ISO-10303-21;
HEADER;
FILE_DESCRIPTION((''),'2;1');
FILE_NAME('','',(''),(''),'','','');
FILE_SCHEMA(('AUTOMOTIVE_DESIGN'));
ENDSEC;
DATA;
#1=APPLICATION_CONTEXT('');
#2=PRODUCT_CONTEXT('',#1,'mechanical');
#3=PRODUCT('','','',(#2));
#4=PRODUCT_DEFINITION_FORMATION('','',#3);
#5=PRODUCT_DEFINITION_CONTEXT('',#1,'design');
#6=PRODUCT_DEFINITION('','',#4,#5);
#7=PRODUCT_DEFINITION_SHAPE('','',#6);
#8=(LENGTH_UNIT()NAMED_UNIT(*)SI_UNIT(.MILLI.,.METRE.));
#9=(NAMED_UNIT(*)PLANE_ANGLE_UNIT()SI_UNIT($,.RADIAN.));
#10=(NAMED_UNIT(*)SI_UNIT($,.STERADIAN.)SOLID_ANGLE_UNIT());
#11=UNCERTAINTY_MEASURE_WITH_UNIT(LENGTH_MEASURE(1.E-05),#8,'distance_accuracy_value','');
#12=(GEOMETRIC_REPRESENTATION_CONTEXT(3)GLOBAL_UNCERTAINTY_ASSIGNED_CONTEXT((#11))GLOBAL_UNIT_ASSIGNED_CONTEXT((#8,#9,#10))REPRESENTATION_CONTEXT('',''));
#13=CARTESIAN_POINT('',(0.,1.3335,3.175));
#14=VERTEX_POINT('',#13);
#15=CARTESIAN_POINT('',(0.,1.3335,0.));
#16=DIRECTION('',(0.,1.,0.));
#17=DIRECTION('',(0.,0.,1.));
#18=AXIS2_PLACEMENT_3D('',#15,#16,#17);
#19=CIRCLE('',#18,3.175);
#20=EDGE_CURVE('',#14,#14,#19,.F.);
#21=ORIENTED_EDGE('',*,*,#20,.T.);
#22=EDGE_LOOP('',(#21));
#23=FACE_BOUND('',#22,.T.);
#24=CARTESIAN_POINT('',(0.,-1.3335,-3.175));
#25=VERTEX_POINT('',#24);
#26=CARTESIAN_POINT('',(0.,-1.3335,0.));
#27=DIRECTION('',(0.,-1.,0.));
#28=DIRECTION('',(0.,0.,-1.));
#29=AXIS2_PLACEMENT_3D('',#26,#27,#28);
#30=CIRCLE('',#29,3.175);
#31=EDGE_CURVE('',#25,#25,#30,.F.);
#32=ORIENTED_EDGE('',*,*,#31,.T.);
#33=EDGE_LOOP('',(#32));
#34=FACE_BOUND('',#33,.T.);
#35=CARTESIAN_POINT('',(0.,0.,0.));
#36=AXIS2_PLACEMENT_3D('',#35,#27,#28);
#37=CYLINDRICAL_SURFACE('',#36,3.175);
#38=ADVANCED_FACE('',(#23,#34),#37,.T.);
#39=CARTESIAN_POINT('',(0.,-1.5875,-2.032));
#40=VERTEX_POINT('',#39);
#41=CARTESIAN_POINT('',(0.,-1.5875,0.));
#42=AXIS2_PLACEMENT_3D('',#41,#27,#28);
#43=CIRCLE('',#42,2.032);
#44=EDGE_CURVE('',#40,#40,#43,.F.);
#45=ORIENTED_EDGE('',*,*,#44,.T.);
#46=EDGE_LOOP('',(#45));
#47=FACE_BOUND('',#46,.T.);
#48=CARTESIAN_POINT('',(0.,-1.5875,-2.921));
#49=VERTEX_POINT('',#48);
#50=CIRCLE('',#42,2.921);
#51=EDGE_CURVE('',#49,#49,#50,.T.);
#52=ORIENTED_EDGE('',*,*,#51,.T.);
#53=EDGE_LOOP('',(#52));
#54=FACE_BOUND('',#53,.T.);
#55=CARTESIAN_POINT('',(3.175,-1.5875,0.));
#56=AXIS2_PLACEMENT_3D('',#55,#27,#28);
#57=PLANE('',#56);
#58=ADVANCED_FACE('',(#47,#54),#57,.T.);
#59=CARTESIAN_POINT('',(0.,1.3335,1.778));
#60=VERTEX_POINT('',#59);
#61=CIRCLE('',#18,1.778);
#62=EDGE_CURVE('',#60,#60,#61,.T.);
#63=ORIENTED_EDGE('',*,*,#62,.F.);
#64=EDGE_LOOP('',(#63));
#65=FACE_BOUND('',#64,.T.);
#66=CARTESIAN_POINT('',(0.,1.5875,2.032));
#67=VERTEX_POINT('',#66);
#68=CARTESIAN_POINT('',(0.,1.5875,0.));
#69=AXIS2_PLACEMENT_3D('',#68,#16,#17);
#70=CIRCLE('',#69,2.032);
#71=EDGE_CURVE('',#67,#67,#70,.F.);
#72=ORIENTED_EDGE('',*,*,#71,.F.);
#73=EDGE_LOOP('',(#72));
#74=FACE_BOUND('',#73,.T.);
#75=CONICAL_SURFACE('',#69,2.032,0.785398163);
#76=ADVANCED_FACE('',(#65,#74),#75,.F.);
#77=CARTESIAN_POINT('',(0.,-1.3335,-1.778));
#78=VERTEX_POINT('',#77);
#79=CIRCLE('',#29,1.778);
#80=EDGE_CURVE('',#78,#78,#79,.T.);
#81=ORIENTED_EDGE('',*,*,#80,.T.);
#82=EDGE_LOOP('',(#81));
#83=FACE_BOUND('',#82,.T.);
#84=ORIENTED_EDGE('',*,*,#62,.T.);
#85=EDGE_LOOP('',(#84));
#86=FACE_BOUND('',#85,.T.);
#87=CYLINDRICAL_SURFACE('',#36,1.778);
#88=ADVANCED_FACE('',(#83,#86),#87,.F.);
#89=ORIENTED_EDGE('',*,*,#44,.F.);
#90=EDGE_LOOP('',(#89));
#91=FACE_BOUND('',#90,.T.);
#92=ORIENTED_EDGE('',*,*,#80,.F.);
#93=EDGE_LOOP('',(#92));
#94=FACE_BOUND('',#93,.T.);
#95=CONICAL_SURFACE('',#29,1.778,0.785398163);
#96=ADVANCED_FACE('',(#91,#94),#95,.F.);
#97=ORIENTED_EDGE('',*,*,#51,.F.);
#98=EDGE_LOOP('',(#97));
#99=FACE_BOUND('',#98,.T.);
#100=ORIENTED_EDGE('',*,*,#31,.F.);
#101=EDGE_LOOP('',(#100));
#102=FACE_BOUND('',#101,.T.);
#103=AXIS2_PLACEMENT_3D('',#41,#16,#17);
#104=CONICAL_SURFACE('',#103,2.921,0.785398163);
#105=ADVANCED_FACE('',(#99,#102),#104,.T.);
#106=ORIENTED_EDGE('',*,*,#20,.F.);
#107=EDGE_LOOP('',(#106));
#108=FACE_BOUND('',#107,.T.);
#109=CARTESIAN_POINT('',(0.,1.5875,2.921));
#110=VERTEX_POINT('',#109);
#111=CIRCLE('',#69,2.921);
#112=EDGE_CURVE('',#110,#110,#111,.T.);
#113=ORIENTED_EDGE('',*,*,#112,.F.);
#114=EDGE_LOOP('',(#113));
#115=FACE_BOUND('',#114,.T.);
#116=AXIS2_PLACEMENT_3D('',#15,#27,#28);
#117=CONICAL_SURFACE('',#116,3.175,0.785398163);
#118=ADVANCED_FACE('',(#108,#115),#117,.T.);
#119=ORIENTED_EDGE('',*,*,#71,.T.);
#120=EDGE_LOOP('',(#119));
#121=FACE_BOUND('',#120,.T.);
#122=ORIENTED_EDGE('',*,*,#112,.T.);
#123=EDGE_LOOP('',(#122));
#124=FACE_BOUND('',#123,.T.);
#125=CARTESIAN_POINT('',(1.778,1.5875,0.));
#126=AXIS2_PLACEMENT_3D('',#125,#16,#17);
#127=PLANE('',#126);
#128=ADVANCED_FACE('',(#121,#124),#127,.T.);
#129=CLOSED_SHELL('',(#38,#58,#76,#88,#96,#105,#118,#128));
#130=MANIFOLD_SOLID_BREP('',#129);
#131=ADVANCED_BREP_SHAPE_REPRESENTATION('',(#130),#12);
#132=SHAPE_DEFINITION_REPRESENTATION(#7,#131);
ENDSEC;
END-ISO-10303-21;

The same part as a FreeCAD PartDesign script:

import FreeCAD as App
import Part
import Sketcher

V = App.Vector
Q = App.Units.Quantity


def edges_at(feature, points):
    """Names of the edges that pass closest to the given points."""
    edges = feature.Shape.Edges
    near = lambda p: min(range(len(edges)), key=lambda i: edges[i].distToShape(Part.Vertex(*p))[0])
    return sorted({f"Edge{near(p) + 1}" for p in points})


def add_polygon(sketch, points):
    """Adds a closed chain of lines whose ends are joined by coincident constraints."""
    first, n = sketch.GeometryCount, len(points)
    for a, b in zip(points, points[1:] + points[:1]):
        sketch.addGeometry(Part.LineSegment(App.Vector(*a, 0), App.Vector(*b, 0)), False)
    for i in range(n):
        sketch.addConstraint(Sketcher.Constraint("Coincident", first + i, 2, first + (i + 1) % n, 1))

doc = App.newDocument("Part")
params = doc.addObject("Spreadsheet::Sheet", "Params")
for row, (alias, value) in enumerate([
    ("sketch1_width", "0.055 in"),
    ("sketch1_height", "0.125 in"),
    ("revolution_angle", "360 deg"),
    ("chamfer_size", "0.01 in"),
], start=1):
    params.set(f"A{row}", alias)
    params.set(f"B{row}", "=" + value)
    params.setAlias(f"B{row}", alias)

body = doc.addObject("PartDesign::Body", "Body")

# Sketch on XY plane
sketch1 = body.newObject("Sketcher::SketchObject", "Sketch")
sketch1.AttachmentSupport = (doc.getObject("XY_Plane"), [""])
sketch1.MapMode = "FlatFace"
add_polygon(sketch1, [(1.8, 1.6), (1.8, -1.6), (3.2, -1.6), (3.2, 1.6)])  # lines 0-3
sketch1.addConstraint(Sketcher.Constraint("Vertical", 0))
sketch1.addConstraint(Sketcher.Constraint("Horizontal", 1))
sketch1.addConstraint(Sketcher.Constraint("Vertical", 2))
sketch1.addConstraint(Sketcher.Constraint("Horizontal", 3))
sketch1.addConstraint(Sketcher.Constraint("DistanceX", 1, 1, 1, 2, Q("0.055 in")))
sketch1.addConstraint(Sketcher.Constraint("DistanceY", 0, 2, 0, 1, Q("0.125 in")))
sketch1.addConstraint(Sketcher.Constraint("DistanceX", -1, 1, 0, 2, Q("0.07 in")))
sketch1.addConstraint(Sketcher.Constraint("DistanceY", 0, 2, -1, 1, Q("0.0625 in")))
sketch1.setExpression("Constraints[8]", "Params.sketch1_width")
sketch1.setExpression("Constraints[9]", "Params.sketch1_height")
revolution = body.newObject("PartDesign::Revolution", "Revolution")
revolution.Profile = sketch1
revolution.ReferenceAxis = (sketch1, ["V_Axis"])
revolution.setExpression("Angle", "Params.revolution_angle")
doc.recompute()

chamfer = body.newObject("PartDesign::Chamfer", "Chamfer")
chamfer.Base = (revolution, edges_at(revolution, [
    (-1.778, -1.587, 0),
    (-3.175, -1.587, 0),
    (-3.175, 1.587, 0),
    (-1.778, 1.587, 0),
]))
chamfer.setExpression("Size", "Params.chamfer_size")

doc.recompute()
